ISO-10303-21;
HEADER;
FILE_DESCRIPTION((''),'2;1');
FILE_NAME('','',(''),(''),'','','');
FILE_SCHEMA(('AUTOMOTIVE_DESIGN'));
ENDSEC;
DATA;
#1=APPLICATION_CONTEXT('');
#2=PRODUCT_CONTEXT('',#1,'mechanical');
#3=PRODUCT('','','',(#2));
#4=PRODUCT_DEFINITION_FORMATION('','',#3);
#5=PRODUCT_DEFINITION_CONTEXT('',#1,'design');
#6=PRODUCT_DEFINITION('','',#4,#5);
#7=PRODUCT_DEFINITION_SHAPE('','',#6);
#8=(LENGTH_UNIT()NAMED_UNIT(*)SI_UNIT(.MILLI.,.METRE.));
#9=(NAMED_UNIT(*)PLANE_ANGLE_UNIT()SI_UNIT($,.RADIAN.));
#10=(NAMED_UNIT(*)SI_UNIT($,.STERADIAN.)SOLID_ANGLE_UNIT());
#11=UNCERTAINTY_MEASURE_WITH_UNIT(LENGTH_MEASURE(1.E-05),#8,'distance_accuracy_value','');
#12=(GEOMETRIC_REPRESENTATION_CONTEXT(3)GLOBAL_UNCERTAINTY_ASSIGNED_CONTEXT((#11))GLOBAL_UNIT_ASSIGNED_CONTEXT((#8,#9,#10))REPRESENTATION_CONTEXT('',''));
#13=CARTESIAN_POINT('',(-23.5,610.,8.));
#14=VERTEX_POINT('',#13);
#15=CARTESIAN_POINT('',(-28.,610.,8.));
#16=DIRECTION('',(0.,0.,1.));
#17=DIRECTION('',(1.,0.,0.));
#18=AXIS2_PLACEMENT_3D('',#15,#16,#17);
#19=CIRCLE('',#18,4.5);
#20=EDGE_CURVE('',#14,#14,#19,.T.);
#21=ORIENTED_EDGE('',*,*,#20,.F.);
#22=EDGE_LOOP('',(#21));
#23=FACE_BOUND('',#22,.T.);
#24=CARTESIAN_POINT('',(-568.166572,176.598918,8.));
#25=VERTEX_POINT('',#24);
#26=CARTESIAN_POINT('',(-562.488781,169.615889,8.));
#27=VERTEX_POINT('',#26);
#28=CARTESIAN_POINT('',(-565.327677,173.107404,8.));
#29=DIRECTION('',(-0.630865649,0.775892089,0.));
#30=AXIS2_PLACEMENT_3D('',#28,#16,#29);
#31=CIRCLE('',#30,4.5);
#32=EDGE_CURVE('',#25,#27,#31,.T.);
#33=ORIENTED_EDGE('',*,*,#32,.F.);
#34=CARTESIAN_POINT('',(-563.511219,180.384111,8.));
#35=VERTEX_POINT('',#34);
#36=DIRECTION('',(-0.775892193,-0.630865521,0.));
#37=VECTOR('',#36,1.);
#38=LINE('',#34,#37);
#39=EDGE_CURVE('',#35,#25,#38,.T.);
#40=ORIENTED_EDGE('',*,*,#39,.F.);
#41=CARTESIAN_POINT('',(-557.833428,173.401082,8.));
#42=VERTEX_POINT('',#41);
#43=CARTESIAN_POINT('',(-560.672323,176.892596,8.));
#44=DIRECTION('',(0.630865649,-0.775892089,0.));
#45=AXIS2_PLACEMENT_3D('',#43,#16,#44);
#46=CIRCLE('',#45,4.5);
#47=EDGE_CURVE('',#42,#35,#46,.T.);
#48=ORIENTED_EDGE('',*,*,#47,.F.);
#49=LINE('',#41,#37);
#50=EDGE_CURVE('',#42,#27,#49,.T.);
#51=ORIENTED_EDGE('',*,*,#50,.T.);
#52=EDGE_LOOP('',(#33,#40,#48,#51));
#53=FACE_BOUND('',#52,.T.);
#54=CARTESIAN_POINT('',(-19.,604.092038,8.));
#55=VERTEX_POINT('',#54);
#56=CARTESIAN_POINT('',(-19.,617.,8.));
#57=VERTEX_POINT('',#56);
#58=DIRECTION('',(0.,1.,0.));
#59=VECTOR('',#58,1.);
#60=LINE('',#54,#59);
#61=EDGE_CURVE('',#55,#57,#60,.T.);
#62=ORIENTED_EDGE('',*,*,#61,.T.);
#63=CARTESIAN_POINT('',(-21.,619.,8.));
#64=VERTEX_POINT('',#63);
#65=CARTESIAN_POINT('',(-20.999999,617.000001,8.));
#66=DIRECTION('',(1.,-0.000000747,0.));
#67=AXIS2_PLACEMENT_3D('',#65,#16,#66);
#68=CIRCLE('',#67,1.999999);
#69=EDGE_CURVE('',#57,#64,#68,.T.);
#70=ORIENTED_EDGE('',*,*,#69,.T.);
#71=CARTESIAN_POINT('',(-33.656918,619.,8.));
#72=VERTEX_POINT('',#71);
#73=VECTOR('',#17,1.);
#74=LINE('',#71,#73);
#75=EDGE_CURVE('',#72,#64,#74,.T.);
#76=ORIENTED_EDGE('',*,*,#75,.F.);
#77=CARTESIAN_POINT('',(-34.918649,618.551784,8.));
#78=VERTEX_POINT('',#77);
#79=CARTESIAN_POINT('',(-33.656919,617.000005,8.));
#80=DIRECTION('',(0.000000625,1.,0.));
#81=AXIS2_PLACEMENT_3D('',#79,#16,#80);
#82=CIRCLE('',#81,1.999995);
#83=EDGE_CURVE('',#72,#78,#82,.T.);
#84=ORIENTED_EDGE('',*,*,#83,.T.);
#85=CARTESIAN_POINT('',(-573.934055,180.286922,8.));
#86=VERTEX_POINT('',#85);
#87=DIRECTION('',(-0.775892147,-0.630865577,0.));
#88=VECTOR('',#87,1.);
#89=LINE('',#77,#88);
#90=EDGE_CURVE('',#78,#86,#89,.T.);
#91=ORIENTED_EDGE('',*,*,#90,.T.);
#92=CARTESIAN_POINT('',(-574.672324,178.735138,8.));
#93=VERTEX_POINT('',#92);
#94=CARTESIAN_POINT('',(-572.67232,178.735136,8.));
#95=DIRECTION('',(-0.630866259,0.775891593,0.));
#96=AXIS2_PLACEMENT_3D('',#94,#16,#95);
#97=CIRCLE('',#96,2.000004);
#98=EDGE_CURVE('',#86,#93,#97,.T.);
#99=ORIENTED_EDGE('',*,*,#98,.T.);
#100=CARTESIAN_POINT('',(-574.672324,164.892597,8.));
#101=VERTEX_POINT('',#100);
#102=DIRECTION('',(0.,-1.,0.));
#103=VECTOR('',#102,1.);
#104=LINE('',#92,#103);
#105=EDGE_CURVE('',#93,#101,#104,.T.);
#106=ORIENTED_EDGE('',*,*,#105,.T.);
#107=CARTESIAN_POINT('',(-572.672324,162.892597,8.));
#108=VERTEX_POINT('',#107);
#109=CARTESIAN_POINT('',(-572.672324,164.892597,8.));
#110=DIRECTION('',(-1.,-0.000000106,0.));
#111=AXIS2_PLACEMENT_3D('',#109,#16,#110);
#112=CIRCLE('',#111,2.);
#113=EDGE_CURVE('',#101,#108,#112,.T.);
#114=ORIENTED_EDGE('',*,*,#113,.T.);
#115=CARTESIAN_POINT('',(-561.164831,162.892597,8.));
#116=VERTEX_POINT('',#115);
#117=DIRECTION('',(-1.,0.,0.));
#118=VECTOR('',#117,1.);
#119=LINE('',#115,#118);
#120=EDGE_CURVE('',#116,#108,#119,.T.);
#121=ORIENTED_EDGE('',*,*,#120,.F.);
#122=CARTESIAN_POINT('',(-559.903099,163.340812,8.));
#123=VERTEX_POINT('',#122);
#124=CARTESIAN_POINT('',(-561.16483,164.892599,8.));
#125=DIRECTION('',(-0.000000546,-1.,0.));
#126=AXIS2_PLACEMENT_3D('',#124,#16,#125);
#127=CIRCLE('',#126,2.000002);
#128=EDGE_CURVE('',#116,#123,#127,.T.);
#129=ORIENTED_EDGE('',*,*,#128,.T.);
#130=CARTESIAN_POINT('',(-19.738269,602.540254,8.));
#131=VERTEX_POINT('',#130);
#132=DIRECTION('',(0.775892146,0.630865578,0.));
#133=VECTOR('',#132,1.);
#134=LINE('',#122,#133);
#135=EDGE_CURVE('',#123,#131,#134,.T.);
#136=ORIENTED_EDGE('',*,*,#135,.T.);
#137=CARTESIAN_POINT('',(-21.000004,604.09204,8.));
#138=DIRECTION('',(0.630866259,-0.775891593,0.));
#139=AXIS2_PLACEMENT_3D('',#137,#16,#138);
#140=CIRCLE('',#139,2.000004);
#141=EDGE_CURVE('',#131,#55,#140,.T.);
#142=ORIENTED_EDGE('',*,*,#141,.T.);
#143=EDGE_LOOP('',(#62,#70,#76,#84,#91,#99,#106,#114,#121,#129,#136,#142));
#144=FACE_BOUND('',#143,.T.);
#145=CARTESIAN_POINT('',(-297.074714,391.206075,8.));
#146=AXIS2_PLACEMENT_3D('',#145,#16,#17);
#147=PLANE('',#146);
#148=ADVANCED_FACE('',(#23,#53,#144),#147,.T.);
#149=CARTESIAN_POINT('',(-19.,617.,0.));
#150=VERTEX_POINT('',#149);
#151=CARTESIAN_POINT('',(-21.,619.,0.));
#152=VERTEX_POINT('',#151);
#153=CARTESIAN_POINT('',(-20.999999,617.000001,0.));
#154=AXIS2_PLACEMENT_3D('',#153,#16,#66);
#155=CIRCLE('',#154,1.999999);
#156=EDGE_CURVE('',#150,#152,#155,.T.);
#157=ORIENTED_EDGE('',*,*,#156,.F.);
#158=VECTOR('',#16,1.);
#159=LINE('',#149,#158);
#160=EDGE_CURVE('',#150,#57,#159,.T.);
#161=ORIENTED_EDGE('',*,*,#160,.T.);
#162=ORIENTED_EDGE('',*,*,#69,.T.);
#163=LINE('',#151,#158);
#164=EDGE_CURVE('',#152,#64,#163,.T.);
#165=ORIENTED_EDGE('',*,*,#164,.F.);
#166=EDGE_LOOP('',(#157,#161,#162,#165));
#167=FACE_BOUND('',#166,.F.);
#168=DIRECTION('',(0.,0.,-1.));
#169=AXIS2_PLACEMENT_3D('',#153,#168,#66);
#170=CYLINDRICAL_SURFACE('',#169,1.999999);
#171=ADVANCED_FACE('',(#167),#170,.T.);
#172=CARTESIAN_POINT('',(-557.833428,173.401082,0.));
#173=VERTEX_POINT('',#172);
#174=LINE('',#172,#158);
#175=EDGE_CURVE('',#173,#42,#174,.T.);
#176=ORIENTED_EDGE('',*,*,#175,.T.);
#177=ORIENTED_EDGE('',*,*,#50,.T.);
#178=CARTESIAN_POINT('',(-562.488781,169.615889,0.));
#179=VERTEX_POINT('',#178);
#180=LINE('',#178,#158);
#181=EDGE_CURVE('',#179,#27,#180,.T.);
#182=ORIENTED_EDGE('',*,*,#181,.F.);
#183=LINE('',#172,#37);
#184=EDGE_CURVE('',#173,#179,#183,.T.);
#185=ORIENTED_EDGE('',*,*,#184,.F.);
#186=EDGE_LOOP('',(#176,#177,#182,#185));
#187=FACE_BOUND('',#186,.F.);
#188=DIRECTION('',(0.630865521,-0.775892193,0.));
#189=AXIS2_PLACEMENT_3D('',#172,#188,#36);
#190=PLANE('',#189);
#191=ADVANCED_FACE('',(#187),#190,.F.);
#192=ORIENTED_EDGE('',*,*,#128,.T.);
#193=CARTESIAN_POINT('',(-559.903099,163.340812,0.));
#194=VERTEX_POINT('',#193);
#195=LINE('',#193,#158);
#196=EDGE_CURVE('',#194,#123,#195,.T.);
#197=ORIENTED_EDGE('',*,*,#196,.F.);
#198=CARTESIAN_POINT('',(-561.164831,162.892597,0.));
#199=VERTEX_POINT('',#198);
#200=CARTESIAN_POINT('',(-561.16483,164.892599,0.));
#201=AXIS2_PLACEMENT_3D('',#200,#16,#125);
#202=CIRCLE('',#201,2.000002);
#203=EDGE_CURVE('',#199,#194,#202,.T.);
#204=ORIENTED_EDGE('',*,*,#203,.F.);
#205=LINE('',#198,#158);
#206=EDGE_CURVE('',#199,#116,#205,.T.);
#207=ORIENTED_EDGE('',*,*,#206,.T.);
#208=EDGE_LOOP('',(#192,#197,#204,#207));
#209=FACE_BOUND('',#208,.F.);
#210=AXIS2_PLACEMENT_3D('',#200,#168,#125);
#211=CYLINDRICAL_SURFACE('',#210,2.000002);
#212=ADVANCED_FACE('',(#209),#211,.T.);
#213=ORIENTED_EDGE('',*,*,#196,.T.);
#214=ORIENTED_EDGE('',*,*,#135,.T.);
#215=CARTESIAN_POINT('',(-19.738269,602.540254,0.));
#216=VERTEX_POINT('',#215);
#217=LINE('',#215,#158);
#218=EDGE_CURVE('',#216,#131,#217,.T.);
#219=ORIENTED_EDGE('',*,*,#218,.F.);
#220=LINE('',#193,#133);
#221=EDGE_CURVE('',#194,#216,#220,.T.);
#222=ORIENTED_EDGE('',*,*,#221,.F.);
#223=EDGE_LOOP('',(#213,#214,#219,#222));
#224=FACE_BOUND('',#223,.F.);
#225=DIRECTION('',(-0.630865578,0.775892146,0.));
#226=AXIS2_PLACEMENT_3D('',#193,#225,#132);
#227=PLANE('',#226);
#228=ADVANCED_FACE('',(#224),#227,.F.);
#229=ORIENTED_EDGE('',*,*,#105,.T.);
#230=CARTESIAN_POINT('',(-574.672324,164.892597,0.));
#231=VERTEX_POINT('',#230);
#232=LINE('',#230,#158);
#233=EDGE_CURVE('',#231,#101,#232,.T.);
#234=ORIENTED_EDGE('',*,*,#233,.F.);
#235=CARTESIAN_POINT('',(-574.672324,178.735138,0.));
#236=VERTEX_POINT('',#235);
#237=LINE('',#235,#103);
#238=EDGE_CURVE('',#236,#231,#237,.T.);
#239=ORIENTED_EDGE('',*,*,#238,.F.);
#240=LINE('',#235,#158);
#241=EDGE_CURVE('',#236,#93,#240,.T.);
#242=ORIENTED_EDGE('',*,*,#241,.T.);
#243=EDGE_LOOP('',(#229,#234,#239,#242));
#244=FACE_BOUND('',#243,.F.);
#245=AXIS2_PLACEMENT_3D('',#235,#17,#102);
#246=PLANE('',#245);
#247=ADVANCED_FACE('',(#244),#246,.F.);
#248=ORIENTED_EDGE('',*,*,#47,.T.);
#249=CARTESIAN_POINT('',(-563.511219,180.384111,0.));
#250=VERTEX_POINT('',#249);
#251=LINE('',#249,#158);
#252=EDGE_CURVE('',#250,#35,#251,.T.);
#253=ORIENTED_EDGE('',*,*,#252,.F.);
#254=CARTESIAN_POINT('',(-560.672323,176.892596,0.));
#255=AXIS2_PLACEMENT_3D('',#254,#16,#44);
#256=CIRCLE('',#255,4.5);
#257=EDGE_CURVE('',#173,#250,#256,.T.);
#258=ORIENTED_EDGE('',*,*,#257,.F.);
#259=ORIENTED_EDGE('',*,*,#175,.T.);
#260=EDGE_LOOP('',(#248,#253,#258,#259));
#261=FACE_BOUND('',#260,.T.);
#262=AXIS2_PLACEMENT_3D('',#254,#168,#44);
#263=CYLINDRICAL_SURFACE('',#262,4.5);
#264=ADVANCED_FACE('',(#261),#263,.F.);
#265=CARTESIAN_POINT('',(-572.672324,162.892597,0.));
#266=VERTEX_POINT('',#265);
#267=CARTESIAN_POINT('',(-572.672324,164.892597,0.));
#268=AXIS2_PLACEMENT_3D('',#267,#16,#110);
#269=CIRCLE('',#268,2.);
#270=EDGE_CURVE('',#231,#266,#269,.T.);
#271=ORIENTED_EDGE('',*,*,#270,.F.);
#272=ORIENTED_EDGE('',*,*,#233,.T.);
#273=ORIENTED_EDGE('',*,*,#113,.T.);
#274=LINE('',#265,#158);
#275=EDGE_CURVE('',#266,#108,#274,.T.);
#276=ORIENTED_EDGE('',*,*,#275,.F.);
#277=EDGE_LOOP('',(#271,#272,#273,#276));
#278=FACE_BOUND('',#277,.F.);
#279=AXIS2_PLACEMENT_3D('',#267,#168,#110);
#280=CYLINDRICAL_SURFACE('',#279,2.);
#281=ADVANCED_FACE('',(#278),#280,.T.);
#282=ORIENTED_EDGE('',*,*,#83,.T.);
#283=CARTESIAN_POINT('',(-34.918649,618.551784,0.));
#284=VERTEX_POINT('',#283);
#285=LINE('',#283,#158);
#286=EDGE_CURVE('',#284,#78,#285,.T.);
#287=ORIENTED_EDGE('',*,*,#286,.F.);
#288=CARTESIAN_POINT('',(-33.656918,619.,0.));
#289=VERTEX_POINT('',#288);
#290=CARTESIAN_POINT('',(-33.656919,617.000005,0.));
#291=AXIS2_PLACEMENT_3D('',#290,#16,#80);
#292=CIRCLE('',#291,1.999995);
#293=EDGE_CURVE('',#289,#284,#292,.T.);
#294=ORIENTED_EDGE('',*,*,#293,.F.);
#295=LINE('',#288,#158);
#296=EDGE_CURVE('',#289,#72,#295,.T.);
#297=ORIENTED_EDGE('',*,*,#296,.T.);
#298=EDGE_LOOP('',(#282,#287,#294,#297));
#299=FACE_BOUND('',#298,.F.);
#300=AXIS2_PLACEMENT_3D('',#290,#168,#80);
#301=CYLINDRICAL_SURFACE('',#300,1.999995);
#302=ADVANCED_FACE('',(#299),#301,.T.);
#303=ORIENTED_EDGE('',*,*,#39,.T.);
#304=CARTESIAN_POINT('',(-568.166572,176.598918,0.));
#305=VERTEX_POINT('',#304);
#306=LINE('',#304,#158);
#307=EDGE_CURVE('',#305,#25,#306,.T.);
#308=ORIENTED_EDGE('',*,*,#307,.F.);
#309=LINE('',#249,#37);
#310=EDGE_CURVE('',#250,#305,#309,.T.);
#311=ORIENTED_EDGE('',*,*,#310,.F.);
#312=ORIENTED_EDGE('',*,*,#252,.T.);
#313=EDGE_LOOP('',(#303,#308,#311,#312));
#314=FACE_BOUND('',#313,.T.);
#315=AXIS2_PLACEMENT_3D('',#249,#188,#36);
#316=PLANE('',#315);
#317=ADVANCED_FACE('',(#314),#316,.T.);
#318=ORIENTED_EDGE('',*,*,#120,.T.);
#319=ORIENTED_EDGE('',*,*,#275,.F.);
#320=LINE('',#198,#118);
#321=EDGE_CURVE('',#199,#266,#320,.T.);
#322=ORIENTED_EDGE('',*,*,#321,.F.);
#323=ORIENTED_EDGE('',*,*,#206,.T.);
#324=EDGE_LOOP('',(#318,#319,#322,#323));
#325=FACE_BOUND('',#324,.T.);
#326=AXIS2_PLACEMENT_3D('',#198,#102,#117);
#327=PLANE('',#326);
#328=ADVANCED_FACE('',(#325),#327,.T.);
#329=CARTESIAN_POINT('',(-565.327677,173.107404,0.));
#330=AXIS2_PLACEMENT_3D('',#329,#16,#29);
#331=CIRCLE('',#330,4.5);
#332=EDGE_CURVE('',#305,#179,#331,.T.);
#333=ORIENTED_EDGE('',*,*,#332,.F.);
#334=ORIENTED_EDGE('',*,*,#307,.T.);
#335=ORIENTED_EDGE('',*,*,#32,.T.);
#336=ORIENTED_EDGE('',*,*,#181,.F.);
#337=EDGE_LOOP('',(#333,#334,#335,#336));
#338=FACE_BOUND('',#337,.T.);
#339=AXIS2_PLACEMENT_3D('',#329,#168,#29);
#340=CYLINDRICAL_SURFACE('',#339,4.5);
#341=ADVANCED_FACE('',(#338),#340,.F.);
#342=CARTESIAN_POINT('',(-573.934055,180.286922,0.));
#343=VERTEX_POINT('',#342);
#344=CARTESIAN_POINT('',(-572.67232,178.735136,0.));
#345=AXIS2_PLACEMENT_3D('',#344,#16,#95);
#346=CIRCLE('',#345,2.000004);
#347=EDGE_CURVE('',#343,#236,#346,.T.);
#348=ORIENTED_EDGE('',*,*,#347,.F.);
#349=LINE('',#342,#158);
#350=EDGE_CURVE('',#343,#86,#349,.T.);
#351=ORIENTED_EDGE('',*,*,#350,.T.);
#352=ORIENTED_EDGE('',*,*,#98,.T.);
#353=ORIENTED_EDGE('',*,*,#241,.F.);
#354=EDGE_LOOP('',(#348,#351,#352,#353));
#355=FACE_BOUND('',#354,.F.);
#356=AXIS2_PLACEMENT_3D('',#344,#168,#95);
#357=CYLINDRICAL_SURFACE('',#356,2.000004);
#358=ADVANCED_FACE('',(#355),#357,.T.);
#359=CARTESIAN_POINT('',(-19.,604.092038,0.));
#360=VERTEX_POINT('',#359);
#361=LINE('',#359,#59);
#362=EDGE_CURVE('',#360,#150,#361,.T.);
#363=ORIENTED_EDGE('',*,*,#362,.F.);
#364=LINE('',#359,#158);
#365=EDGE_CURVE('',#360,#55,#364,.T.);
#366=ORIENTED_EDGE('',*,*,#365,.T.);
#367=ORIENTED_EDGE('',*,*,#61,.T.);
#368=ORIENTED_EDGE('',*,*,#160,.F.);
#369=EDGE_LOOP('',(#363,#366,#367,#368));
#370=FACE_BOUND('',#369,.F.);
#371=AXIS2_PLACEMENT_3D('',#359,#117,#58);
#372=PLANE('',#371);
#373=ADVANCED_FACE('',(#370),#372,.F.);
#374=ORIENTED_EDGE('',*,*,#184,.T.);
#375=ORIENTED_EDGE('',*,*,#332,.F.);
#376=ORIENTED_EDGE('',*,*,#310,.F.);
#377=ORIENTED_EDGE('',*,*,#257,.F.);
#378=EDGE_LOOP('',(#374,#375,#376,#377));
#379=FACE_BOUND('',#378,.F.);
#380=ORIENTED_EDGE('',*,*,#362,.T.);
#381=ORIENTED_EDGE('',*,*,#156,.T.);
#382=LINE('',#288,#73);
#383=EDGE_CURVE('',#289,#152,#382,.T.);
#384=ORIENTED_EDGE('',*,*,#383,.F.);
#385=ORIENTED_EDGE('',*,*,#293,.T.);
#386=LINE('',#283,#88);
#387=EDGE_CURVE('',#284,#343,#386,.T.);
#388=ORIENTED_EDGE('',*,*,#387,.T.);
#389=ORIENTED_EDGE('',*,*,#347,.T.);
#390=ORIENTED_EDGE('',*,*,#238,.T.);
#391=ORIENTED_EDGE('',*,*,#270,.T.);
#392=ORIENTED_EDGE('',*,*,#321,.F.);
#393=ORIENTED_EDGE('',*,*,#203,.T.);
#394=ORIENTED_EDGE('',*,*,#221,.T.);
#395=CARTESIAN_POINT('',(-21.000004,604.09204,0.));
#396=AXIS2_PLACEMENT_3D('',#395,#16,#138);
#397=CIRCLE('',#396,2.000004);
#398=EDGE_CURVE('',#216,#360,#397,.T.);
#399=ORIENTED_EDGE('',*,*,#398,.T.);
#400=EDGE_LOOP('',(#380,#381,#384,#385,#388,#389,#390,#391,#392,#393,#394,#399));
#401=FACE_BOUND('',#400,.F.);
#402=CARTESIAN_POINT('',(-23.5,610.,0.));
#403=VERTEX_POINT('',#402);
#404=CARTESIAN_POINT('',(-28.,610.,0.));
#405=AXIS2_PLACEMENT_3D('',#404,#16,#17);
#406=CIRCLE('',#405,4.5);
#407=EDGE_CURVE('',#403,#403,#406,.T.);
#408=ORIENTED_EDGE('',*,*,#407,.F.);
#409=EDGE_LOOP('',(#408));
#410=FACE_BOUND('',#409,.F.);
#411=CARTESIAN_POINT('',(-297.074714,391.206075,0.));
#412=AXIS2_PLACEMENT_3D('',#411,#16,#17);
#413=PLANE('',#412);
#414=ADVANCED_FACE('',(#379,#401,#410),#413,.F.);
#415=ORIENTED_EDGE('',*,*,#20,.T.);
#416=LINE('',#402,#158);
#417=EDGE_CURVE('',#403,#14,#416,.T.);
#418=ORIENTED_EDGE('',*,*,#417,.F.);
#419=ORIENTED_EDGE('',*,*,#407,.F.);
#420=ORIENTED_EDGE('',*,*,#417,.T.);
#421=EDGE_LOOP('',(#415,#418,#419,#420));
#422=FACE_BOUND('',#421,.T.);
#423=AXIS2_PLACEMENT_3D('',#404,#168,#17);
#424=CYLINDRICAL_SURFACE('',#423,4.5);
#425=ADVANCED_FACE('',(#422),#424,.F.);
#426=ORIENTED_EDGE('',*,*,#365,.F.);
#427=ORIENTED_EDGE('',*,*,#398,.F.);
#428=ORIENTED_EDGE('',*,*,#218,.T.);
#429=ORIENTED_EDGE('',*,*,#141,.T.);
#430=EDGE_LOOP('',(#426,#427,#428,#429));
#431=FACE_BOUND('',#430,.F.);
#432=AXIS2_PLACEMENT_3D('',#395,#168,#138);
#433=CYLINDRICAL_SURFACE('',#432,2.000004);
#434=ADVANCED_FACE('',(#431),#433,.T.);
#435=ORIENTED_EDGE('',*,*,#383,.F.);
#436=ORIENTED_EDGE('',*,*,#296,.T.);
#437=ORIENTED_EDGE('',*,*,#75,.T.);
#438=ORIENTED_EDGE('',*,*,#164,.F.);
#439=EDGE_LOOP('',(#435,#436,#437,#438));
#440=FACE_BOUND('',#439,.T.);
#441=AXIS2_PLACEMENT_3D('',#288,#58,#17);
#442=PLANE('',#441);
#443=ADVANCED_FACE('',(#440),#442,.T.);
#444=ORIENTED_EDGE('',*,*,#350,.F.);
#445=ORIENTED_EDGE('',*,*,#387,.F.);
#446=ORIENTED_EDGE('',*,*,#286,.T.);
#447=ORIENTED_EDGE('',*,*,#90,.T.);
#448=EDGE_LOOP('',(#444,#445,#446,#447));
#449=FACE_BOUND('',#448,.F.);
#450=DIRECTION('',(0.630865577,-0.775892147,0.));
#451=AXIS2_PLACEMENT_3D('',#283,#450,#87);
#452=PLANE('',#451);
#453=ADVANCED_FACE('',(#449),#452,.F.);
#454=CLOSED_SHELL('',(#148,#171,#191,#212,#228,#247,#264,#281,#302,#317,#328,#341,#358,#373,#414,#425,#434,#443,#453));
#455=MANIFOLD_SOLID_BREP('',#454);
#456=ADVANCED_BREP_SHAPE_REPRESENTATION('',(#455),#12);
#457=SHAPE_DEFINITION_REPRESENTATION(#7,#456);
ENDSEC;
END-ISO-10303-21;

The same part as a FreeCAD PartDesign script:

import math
import FreeCAD as App
import Part
import Sketcher

doc = App.newDocument("Part")
params = doc.addObject("Spreadsheet::Sheet", "Params")
for row, (alias, value) in enumerate([
    ("sketch1_diameter", "9 mm"),
    ("sketch1_radius", "2 mm"),
    ("sketch1_length", "6 mm"),
    ("pad1_length", "8 mm"),
], start=1):
    params.set(f"A{row}", alias)
    params.set(f"B{row}", "=" + value)
    params.setAlias(f"B{row}", alias)

body = doc.addObject("PartDesign::Body", "Body")

sketch1 = doc.addObject("Sketcher::SketchObject", "Sketch")
body.addObject(sketch1)
sketch1.AttachmentSupport = (doc.XY_Plane, [""])
sketch1.MapMode = "FlatFace"
sketch1.addGeometry([
    Part.LineSegment(App.Vector(-34.918649, 618.551784, 0), App.Vector(-573.934055, 180.286922, 0)),
    Part.ArcOfCircle(Part.Circle(App.Vector(-572.67232, 178.735136, 0), App.Vector(0, 0, 1), 2.000004), math.radians(129.114062), math.radians(179.999932)),
    Part.LineSegment(App.Vector(-574.672324, 178.735138, 0), App.Vector(-574.672324, 164.892597, 0)),
    Part.ArcOfCircle(Part.Circle(App.Vector(-572.672324, 164.892597, 0), App.Vector(0, 0, 1), 2), math.radians(-179.999994), math.radians(-90.000006)),
    Part.LineSegment(App.Vector(-572.672324, 162.892597, 0), App.Vector(-561.164831, 162.892597, 0)),
    Part.ArcOfCircle(Part.Circle(App.Vector(-561.16483, 164.892599, 0), App.Vector(0, 0, 1), 2.000002), math.radians(-90.000031), math.radians(-50.886038)),
    Part.LineSegment(App.Vector(-559.903099, 163.340812, 0), App.Vector(-19.738269, 602.540254, 0)),
    Part.ArcOfCircle(Part.Circle(App.Vector(-21.000004, 604.09204, 0), App.Vector(0, 0, 1), 2.000004), math.radians(-50.885938), math.radians(-0.000068)),
    Part.LineSegment(App.Vector(-19, 604.092038, 0), App.Vector(-19, 617, 0)),
    Part.ArcOfCircle(Part.Circle(App.Vector(-20.999999, 617.000001, 0), App.Vector(0, 0, 1), 1.999999), math.radians(-0.000043), math.radians(90.000043)),
    Part.LineSegment(App.Vector(-21, 619, 0), App.Vector(-33.656918, 619, 0)),
    Part.ArcOfCircle(Part.Circle(App.Vector(-33.656919, 617.000005, 0), App.Vector(0, 0, 1), 1.999995), math.radians(89.999964), math.radians(129.114076)),
    Part.LineSegment(App.Vector(-568.166572, 176.598918, 0), App.Vector(-563.511219, 180.384111, 0)),
    Part.ArcOfCircle(Part.Circle(App.Vector(-560.672323, 176.892596, 0), App.Vector(0, 0, 1), 4.5), math.radians(-50.885983), math.radians(129.114017)),
    Part.LineSegment(App.Vector(-557.833428, 173.401082, 0), App.Vector(-562.488781, 169.615889, 0)),
    Part.ArcOfCircle(Part.Circle(App.Vector(-565.327677, 173.107404, 0), App.Vector(0, 0, 1), 4.5), math.radians(129.114017), math.radians(309.114017)),
    Part.Circle(App.Vector(-28, 610, 0), App.Vector(0, 0, 1), 4.5),
], False)
sketch1.addConstraint([
    Sketcher.Constraint("Tangent", 0, 2, 1, 1),
    Sketcher.Constraint("Tangent", 1, 2, 2, 1),
    Sketcher.Constraint("Tangent", 2, 2, 3, 1),
    Sketcher.Constraint("Tangent", 3, 2, 4, 1),
    Sketcher.Constraint("Tangent", 4, 2, 5, 1),
    Sketcher.Constraint("Tangent", 5, 2, 6, 1),
    Sketcher.Constraint("Tangent", 6, 2, 7, 1),
    Sketcher.Constraint("Tangent", 7, 2, 8, 1),
    Sketcher.Constraint("Tangent", 8, 2, 9, 1),
    Sketcher.Constraint("Tangent", 9, 2, 10, 1),
    Sketcher.Constraint("Tangent", 10, 2, 11, 1),
    Sketcher.Constraint("Tangent", 11, 2, 0, 1),
    Sketcher.Constraint("Tangent", 12, 2, 13, 2),
    Sketcher.Constraint("Tangent", 13, 1, 14, 1),
    Sketcher.Constraint("Tangent", 14, 2, 15, 2),
    Sketcher.Constraint("Tangent", 15, 1, 12, 1),
    Sketcher.Constraint("Vertical", 2),
    Sketcher.Constraint("Horizontal", 4),
    Sketcher.Constraint("Vertical", 8),
    Sketcher.Constraint("Horizontal", 10),
    Sketcher.Constraint("Equal", 3, 5),
    Sketcher.Constraint("Equal", 1, 7),
    Sketcher.Constraint("Equal", 3, 9),
    Sketcher.Constraint("Equal", 13, 15),
    Sketcher.Constraint("Equal", 15, 16),
    Sketcher.Constraint("Parallel", 0, 6),
    Sketcher.Constraint("Parallel", 6, 12),
    Sketcher.Constraint("Diameter", 16, 9.0),
    Sketcher.Constraint("Radius", 3, 2.0),
    Sketcher.Constraint("Distance", 12, 6.0),
    Sketcher.Constraint("DistanceX", 9, 3, -1, 1, 20.999999),
    Sketcher.Constraint("DistanceY", -1, 1, 9, 3, 617.000001),
    Sketcher.Constraint("DistanceX", 16, 3, -1, 1, 28.0),
    Sketcher.Constraint("DistanceY", -1, 1, 16, 3, 610.0),
    Sketcher.Constraint("DistanceX", 3, 3, 13, 3, 12.0),
    Sketcher.Constraint("DistanceY", 3, 3, 13, 3, 11.999999),
    Sketcher.Constraint("Radius", 1, 2.000004),
    Sketcher.Constraint("Radius", 11, 1.999995),
    Sketcher.Constraint("DistanceY", 2, 2, 2, 1, 13.842541),
    Sketcher.Constraint("DistanceY", 8, 1, 8, 2, 12.907962),
    Sketcher.Constraint("DistanceY", -1, 1, 5, 3, 164.892599),
    Sketcher.Constraint("DistanceX", 5, 2, -1, 1, 559.903099),
    Sketcher.Constraint("DistanceX", 5, 3, 13, 1, 3.331402),
])
sketch1.setExpression("Constraints[27]", "Params.sketch1_diameter")
sketch1.setExpression("Constraints[28]", "Params.sketch1_radius")
sketch1.setExpression("Constraints[29]", "Params.sketch1_length")
pad1 = doc.addObject("PartDesign::Pad", "Pad")
body.addObject(pad1)
pad1.Profile = sketch1
pad1.setExpression("Length", "Params.pad1_length")

doc.recompute()
